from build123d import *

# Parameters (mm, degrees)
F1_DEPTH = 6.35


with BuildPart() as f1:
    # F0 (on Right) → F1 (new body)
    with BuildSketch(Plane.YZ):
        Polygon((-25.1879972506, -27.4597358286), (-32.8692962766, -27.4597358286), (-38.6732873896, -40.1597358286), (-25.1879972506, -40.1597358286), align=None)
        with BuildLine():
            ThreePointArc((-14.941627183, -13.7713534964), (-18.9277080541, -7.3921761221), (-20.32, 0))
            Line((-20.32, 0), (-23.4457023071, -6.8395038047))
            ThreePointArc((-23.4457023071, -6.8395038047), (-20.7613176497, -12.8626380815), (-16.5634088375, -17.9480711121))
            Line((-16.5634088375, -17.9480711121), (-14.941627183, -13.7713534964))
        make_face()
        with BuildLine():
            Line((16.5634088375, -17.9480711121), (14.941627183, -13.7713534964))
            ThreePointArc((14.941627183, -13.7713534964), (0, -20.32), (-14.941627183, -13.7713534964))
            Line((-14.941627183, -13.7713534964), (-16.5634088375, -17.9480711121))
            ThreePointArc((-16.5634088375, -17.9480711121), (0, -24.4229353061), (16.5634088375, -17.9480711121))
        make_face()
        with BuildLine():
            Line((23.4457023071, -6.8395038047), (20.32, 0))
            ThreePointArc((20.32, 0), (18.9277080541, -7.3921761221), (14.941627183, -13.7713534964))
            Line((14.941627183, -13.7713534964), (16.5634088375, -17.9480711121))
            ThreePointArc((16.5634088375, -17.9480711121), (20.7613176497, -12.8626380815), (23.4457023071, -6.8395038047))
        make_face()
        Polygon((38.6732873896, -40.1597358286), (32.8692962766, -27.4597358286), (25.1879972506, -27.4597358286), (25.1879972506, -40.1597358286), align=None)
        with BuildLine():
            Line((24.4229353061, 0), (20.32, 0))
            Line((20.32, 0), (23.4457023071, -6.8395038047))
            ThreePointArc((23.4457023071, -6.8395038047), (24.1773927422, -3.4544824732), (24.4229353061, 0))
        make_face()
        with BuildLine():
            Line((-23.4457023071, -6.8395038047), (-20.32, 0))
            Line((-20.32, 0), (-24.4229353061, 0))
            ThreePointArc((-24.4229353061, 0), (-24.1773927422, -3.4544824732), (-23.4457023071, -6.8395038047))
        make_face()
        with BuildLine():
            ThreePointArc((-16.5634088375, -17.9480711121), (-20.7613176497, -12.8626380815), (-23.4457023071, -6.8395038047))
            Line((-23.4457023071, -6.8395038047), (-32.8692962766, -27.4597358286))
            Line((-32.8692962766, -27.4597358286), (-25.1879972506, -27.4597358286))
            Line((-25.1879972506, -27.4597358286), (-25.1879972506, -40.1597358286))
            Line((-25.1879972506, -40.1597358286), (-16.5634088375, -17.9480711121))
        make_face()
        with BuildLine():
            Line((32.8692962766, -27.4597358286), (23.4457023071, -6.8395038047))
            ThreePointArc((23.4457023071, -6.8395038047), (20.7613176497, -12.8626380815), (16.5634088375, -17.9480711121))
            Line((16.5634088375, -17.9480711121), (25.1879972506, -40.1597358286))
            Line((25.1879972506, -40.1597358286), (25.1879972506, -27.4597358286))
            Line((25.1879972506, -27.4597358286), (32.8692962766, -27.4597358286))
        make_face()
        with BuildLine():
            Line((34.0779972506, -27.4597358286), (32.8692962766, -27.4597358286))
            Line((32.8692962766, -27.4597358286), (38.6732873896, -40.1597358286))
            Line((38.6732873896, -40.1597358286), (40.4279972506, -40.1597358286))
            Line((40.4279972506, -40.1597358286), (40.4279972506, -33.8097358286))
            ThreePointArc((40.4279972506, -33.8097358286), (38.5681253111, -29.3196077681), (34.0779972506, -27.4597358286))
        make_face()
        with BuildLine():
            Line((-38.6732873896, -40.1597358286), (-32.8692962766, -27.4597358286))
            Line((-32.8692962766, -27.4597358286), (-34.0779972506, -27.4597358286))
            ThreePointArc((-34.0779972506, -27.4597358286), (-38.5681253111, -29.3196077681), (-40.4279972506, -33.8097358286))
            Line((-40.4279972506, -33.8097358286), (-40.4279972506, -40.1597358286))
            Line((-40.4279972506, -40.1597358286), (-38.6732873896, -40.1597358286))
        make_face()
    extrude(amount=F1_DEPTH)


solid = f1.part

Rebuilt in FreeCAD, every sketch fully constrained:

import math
import FreeCAD as App
import Part
import Sketcher
Q = App.Units.Quantity

doc = App.newDocument("Part")
params = doc.addObject("Spreadsheet::Sheet", "Params")
for row, (alias, value) in enumerate([
    ("sketch1_radius", "0.8 in"),
    ("sketch1_radius2", "0.25 in"),
    ("sketch1_width", "0.6 in"),
    ("sketch1_height", "0.25 in"),
    ("pad1_length", "0.25 in"),
], start=1):
    params.set(f"A{row}", alias)
    params.set(f"B{row}", "=" + value)
    params.setAlias(f"B{row}", alias)

body = doc.addObject("PartDesign::Body", "Body")

sketch1 = body.newObject("Sketcher::SketchObject", "Sketch")
sketch1.AttachmentSupport = (doc.getObject("YZ_Plane"), [""])
sketch1.MapMode = "FlatFace"
sketch1.addGeometry([
    Part.LineSegment(App.Vector(-25.2, -40.2, 0), App.Vector(-16.6, -17.9, 0)),
    Part.ArcOfCircle(Part.Circle(App.Vector(0, 0, 0), App.Vector(0, 0, 1), 24.4), math.radians(-133), math.radians(-47)),
    Part.LineSegment(App.Vector(16.6, -17.9, 0), App.Vector(25.2, -40.2, 0)),
    Part.LineSegment(App.Vector(25.2, -40.2, 0), App.Vector(40.4, -40.2, 0)),
    Part.LineSegment(App.Vector(40.4, -40.2, 0), App.Vector(40.4, -33.8, 0)),
    Part.ArcOfCircle(Part.Circle(App.Vector(34.1, -33.8, 0), App.Vector(0, 0, 1), 6.3), math.radians(0), math.radians(90)),
    Part.LineSegment(App.Vector(34.1, -27.5, 0), App.Vector(32.9, -27.5, 0)),
    Part.LineSegment(App.Vector(32.9, -27.5, 0), App.Vector(23.4, -6.8, 0)),
    Part.ArcOfCircle(Part.Circle(App.Vector(0, 0, 0), App.Vector(0, 0, 1), 24.4), math.radians(-16.26), math.radians(0)),
    Part.LineSegment(App.Vector(24.4, 0, 0), App.Vector(20.3, 0, 0)),
    Part.ArcOfCircle(Part.Circle(App.Vector(0, 0, 0), App.Vector(0, 0, 1), 20.3), math.radians(-43), math.radians(0)),
    Part.ArcOfCircle(Part.Circle(App.Vector(0, 0, 0), App.Vector(0, 0, 1), 20.3), math.radians(-137), math.radians(-43)),
    Part.ArcOfCircle(Part.Circle(App.Vector(0, 0, 0), App.Vector(0, 0, 1), 20.3), math.radians(180), math.radians(223)),
    Part.LineSegment(App.Vector(-20.3, 0, 0), App.Vector(-24.4, 0, 0)),
    Part.ArcOfCircle(Part.Circle(App.Vector(0, 0, 0), App.Vector(0, 0, 1), 24.4), math.radians(180), math.radians(196.26)),
    Part.LineSegment(App.Vector(-23.4, -6.8, 0), App.Vector(-32.9, -27.5, 0)),
    Part.LineSegment(App.Vector(-32.9, -27.5, 0), App.Vector(-34.1, -27.5, 0)),
    Part.ArcOfCircle(Part.Circle(App.Vector(-34.1, -33.8, 0), App.Vector(0, 0, 1), 6.3), math.radians(90), math.radians(180)),
    Part.LineSegment(App.Vector(-40.4, -33.8, 0), App.Vector(-40.4, -40.2, 0)),
    Part.LineSegment(App.Vector(-40.4, -40.2, 0), App.Vector(-25.2, -40.2, 0)),
], False)
sketch1.addConstraint([
    Sketcher.Constraint("Coincident", 0, 2, 1, 1),
    Sketcher.Constraint("Coincident", 1, 2, 2, 1),
    Sketcher.Constraint("Coincident", 2, 2, 3, 1),
    Sketcher.Constraint("Coincident", 3, 2, 4, 1),
    Sketcher.Constraint("Tangent", 4, 2, 5, 1),
    Sketcher.Constraint("Tangent", 5, 2, 6, 1),
    Sketcher.Constraint("Coincident", 6, 2, 7, 1),
    Sketcher.Constraint("Coincident", 7, 2, 8, 1),
    Sketcher.Constraint("Coincident", 8, 2, 9, 1),
    Sketcher.Constraint("Coincident", 9, 2, 10, 2),
    Sketcher.Constraint("Tangent", 10, 1, 11, 2),
    Sketcher.Constraint("Tangent", 11, 1, 12, 2),
    Sketcher.Constraint("Coincident", 12, 1, 13, 1),
    Sketcher.Constraint("Coincident", 13, 2, 14, 1),
    Sketcher.Constraint("Coincident", 14, 2, 15, 1),
    Sketcher.Constraint("Coincident", 15, 2, 16, 1),
    Sketcher.Constraint("Tangent", 16, 2, 17, 1),
    Sketcher.Constraint("Tangent", 17, 2, 18, 1),
    Sketcher.Constraint("Coincident", 18, 2, 19, 1),
    Sketcher.Constraint("Coincident", 19, 2, 0, 1),
    Sketcher.Constraint("Horizontal", 3),
    Sketcher.Constraint("Vertical", 4),
    Sketcher.Constraint("Horizontal", 6),
    Sketcher.Constraint("Horizontal", 9),
    Sketcher.Constraint("Horizontal", 13),
    Sketcher.Constraint("Horizontal", 16),
    Sketcher.Constraint("Vertical", 18),
    Sketcher.Constraint("Horizontal", 19),
    Sketcher.Constraint("Coincident", 1, 3, -1, 1),
    Sketcher.Constraint("Coincident", 8, 3, -1, 1),
    Sketcher.Constraint("Coincident", 10, 3, -1, 1),
    Sketcher.Constraint("Coincident", 12, 3, -1, 1),
    Sketcher.Constraint("Coincident", 14, 3, -1, 1),
    Sketcher.Constraint("Equal", 1, 8),
    Sketcher.Constraint("Equal", 8, 14),
    Sketcher.Constraint("Equal", 5, 17),
    Sketcher.Constraint("Symmetric", 5, 3, 17, 3, -2),
    Sketcher.Constraint("Symmetric", 2, 2, 19, 2, -2),
    Sketcher.Constraint("PointOnObject", 8, 2, -1),
    Sketcher.Constraint("PointOnObject", 12, 1, -1),
    Sketcher.Constraint("Horizontal", 0, 2, 1, 2),
    Sketcher.Constraint("Horizontal", 10, 1, 11, 1),
    Sketcher.Constraint("Horizontal", 7, 2, 14, 2),
    Sketcher.Constraint("Equal", 6, 16),
    Sketcher.Constraint("Radius", 10, Q("0.8 in")),
    Sketcher.Constraint("Radius", 5, Q("0.25 in")),
    Sketcher.Constraint("DistanceX", 3, 1, 3, 2, Q("0.6 in")),
    Sketcher.Constraint("DistanceY", 4, 1, 4, 2, Q("0.25 in")),
    Sketcher.Constraint("DistanceX", 6, 2, 6, 1, Q("1.208701 mm")),
    Sketcher.Constraint("Radius", 1, Q("24.422935 mm")),
    Sketcher.Constraint("Distance", 0, Q("23.827328 mm")),
    Sketcher.Constraint("DistanceX", 0, 2, -1, 1, Q("16.563409 mm")),
    Sketcher.Constraint("DistanceX", 17, 3, 0, 2, Q("17.514588 mm")),
    Sketcher.Constraint("DistanceX", 10, 1, 1, 2, Q("1.621782 mm")),
    Sketcher.Constraint("DistanceY", 10, 1, 7, 2, Q("6.93185 mm")),
])
sketch1.setExpression("Constraints[44]", "Params.sketch1_radius")
sketch1.setExpression("Constraints[45]", "Params.sketch1_radius2")
sketch1.setExpression("Constraints[46]", "Params.sketch1_width")
sketch1.setExpression("Constraints[47]", "Params.sketch1_height")
pad1 = body.newObject("PartDesign::Pad", "Pad")
pad1.Profile = sketch1
pad1.setExpression("Length", "Params.pad1_length")

doc.recompute()
